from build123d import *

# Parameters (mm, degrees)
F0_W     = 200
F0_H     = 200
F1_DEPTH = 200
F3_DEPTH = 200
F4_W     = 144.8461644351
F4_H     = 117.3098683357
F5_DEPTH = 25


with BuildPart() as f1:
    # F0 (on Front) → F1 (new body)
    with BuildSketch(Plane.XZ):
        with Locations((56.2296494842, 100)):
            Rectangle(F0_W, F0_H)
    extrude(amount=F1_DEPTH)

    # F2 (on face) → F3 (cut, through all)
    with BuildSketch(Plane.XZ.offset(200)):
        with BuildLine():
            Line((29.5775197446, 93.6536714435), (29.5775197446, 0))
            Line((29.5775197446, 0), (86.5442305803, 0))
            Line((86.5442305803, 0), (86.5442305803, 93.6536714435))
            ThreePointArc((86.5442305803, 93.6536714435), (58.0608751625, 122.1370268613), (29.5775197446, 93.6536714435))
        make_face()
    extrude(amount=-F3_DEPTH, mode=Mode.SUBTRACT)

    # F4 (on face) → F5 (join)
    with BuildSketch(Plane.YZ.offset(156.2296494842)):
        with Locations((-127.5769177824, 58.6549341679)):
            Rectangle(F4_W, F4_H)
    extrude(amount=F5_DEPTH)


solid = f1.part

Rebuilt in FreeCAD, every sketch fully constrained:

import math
import FreeCAD as App
import Part
import Sketcher

V = App.Vector

doc = App.newDocument("Part")
body = doc.addObject("PartDesign::Body", "Body")

sketch1 = body.newObject("Sketcher::SketchObject", "Sketch")
sketch1.AttachmentSupport = (doc.getObject("XZ_Plane"), [""])
sketch1.MapMode = "FlatFace"
sketch1.addGeometry([
    Part.LineSegment(V(-44, 200, 0), V(-44, 0, 0)),
    Part.LineSegment(V(-44, 0, 0), V(156, 0, 0)),
    Part.LineSegment(V(156, 0, 0), V(156, 200, 0)),
    Part.LineSegment(V(156, 200, 0), V(-44, 200, 0)),
], False)
sketch1.addConstraint([
    Sketcher.Constraint("Coincident", 0, 2, 1, 1),
    Sketcher.Constraint("Coincident", 1, 2, 2, 1),
    Sketcher.Constraint("Coincident", 2, 2, 3, 1),
    Sketcher.Constraint("Coincident", 3, 2, 0, 1),
    Sketcher.Constraint("Vertical", 0),
    Sketcher.Constraint("Horizontal", 1),
    Sketcher.Constraint("Vertical", 2),
    Sketcher.Constraint("Horizontal", 3),
    Sketcher.Constraint("PointOnObject", 0, 2, -1),
    Sketcher.Constraint("Equal", 3, 0),
    Sketcher.Constraint("DistanceX", 1, 1, 1, 2, 200.0),
    Sketcher.Constraint("DistanceX", 0, 2, -1, 1, 43.770351),
])
pad1 = body.newObject("PartDesign::Pad", "Pad")
pad1.Profile = sketch1
pad1.Length = 200

sketch2 = body.newObject("Sketcher::SketchObject", "Sketch001")
sketch2.AttachmentSupport = (doc.getObject("XZ_Plane"), [""])
sketch2.MapMode = "FlatFace"
sketch2.AttachmentOffset = App.Placement(V(0, 0, 200), App.Rotation())
sketch2.addGeometry([
    Part.LineSegment(V(30, 94, 0), V(30, 0, 0)),
    Part.LineSegment(V(30, 0, 0), V(87, 0, 0)),
    Part.LineSegment(V(87, 0, 0), V(87, 94, 0)),
    Part.ArcOfCircle(Part.Circle(V(58, 94, 0), V(0, 0, 1), 28), math.radians(0), math.radians(180)),
], False)
sketch2.addConstraint([
    Sketcher.Constraint("Coincident", 0, 2, 1, 1),
    Sketcher.Constraint("Coincident", 1, 2, 2, 1),
    Sketcher.Constraint("Tangent", 2, 2, 3, 1),
    Sketcher.Constraint("Tangent", 3, 2, 0, 1),
    Sketcher.Constraint("Vertical", 0),
    Sketcher.Constraint("Horizontal", 1),
    Sketcher.Constraint("Vertical", 2),
    Sketcher.Constraint("PointOnObject", 0, 2, -1),
    Sketcher.Constraint("Radius", 3, 28.483355),
    Sketcher.Constraint("DistanceY", 0, 2, 0, 1, 93.653671),
    Sketcher.Constraint("DistanceX", -1, 1, 0, 2, 29.57752),
])
pocket1 = body.newObject("PartDesign::Pocket", "Pocket")
pocket1.Profile = sketch2
pocket1.Type = "ThroughAll"

sketch3 = body.newObject("Sketcher::SketchObject", "Sketch002")
sketch3.AttachmentSupport = (doc.getObject("YZ_Plane"), [""])
sketch3.MapMode = "FlatFace"
sketch3.AttachmentOffset = App.Placement(V(0, 0, 156.229649), App.Rotation())
sketch3.addGeometry([
    Part.LineSegment(V(-200, 117, 0), V(-200, 0, 0)),
    Part.LineSegment(V(-200, 0, 0), V(-55, 0, 0)),
    Part.LineSegment(V(-55, 0, 0), V(-55, 117, 0)),
    Part.LineSegment(V(-55, 117, 0), V(-200, 117, 0)),
], False)
sketch3.addConstraint([
    Sketcher.Constraint("Coincident", 0, 2, 1, 1),
    Sketcher.Constraint("Coincident", 1, 2, 2, 1),
    Sketcher.Constraint("Coincident", 2, 2, 3, 1),
    Sketcher.Constraint("Coincident", 3, 2, 0, 1),
    Sketcher.Constraint("Vertical", 0),
    Sketcher.Constraint("Horizontal", 1),
    Sketcher.Constraint("Vertical", 2),
    Sketcher.Constraint("Horizontal", 3),
    Sketcher.Constraint("PointOnObject", 0, 2, -1),
    Sketcher.Constraint("DistanceX", 0, 2, -1, 1, 200.0),
    Sketcher.Constraint("DistanceY", 0, 2, 0, 1, 117.309868),
    Sketcher.Constraint("DistanceX", 1, 1, 1, 2, 144.846164),
])
pad2 = body.newObject("PartDesign::Pad", "Pad001")
pad2.Profile = sketch3
pad2.Length = 25

doc.recompute()
